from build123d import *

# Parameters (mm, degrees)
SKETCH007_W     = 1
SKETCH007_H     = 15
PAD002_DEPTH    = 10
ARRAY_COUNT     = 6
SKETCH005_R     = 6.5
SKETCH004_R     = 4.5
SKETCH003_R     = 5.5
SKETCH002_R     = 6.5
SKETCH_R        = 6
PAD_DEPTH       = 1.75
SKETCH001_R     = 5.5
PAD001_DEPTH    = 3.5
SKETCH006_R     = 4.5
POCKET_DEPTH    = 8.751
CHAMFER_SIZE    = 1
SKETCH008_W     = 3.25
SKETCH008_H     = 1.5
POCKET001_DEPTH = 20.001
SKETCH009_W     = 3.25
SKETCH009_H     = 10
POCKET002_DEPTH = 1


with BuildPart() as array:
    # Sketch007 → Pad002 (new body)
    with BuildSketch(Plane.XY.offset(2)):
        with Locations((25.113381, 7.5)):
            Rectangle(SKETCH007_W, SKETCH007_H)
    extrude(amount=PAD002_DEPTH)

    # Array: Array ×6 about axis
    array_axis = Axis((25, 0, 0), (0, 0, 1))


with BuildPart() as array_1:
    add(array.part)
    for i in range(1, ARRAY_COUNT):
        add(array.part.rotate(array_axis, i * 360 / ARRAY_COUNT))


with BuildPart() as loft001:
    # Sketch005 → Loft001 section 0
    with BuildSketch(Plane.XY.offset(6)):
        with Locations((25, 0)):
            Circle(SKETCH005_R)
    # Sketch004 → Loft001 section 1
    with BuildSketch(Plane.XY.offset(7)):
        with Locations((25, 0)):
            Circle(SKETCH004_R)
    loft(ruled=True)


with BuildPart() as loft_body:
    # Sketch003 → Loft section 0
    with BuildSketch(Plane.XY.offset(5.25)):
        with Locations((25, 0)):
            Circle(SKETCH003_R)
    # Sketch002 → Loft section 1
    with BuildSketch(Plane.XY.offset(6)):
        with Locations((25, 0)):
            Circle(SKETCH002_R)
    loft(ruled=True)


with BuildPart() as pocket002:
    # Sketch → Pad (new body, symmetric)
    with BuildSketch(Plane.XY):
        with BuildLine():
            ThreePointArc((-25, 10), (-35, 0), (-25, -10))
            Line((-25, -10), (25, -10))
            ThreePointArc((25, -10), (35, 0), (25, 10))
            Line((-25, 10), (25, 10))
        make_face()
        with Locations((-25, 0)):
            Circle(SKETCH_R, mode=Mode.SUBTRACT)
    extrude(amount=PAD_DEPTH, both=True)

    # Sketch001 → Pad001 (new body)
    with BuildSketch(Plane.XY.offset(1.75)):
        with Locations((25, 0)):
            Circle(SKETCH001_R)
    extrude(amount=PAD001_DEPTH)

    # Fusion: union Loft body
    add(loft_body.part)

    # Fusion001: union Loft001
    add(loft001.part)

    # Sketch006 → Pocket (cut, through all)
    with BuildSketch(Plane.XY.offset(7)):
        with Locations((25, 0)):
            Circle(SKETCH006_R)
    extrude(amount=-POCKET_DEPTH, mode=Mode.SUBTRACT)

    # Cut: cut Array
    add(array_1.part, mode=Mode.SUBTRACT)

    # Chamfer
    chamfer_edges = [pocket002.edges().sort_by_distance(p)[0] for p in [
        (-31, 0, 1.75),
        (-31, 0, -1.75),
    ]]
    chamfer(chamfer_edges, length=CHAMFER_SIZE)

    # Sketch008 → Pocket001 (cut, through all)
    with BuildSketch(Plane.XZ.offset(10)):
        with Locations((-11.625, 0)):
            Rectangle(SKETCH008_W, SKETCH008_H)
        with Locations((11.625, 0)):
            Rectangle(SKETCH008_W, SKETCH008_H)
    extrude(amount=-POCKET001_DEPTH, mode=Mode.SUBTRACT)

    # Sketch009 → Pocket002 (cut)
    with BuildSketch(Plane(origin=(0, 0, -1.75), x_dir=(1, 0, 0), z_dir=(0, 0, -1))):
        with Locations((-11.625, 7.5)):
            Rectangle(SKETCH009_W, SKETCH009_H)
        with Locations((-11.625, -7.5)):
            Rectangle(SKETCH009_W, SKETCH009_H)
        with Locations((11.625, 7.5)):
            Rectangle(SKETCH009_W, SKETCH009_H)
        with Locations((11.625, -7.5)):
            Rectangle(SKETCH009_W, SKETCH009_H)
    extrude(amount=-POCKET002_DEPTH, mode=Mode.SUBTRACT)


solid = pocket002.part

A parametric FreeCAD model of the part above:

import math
import FreeCAD as App
import Part
import Sketcher
from FreeCAD import Vector
Q = App.Units.Quantity


def edges_at(feature, points):
    """Names of the edges that pass closest to the given points."""
    edges = feature.Shape.Edges
    near = lambda p: min(range(len(edges)), key=lambda i: edges[i].distToShape(Part.Vertex(*p))[0])
    return sorted({f"Edge{near(p) + 1}" for p in points})


def add_polygon(sketch, points):
    """Adds a closed chain of lines whose ends are joined by coincident constraints."""
    first, n = sketch.GeometryCount, len(points)
    for a, b in zip(points, points[1:] + points[:1]):
        sketch.addGeometry(Part.LineSegment(App.Vector(*a, 0), App.Vector(*b, 0)), False)
    for i in range(n):
        sketch.addConstraint(Sketcher.Constraint("Coincident", first + i, 2, first + (i + 1) % n, 1))

doc = App.newDocument("Part")
params = doc.addObject("Spreadsheet::Sheet", "Params")
for row, (alias, value) in enumerate([
    ("sketch1_width", "1 mm"),
    ("sketch1_height", "15 mm"),
    ("pad1_length", "10 mm"),
    ("sketch2_diameter", "13 mm"),
    ("sketch3_diameter", "9 mm"),
    ("sketch4_diameter", "11 mm"),
    ("sketch5_diameter", "13 mm"),
    ("sketch6_diameter", "12 mm"),
    ("sketch6_radius", "10 mm"),
    ("sketch6_width", "50 mm"),
    ("pad2_length", "3.5 mm"),
    ("sketch7_diameter", "11 mm"),
    ("pad3_length", "3.5 mm"),
    ("sketch8_diameter", "9 mm"),
    ("chamfer_size", "1 mm"),
    ("sketch9_height", "1.5 mm"),
    ("sketch9_width", "3.25 mm"),
    ("sketch10_height", "10 mm"),
    ("sketch10_width", "3.25 mm"),
    ("pocket3_length", "1 mm"),
], start=1):
    params.set(f"A{row}", alias)
    params.set(f"B{row}", "=" + value)
    params.setAlias(f"B{row}", alias)

body = doc.addObject("PartDesign::Body", "Body")

sketch1 = body.newObject("Sketcher::SketchObject", "Sketch")
sketch1.AttachmentSupport = (doc.getObject("XY_Plane"), [""])
sketch1.MapMode = "FlatFace"
sketch1.AttachmentOffset = App.Placement(Vector(0, 0, 2), App.Rotation())
add_polygon(sketch1, [(24.613381, 15), (24.613381, 0), (25.613381, 0), (25.613381, 15)])
sketch1.addConstraint(Sketcher.Constraint("Vertical", 0))
sketch1.addConstraint(Sketcher.Constraint("Horizontal", 1))
sketch1.addConstraint(Sketcher.Constraint("Vertical", 2))
sketch1.addConstraint(Sketcher.Constraint("Horizontal", 3))
sketch1.addConstraint(Sketcher.Constraint("PointOnObject", 0, 2, -1))
sketch1.addConstraint(Sketcher.Constraint("DistanceX", 1, 1, 1, 2, Q("1 mm")))
sketch1.addConstraint(Sketcher.Constraint("DistanceY", 0, 2, 0, 1, Q("15 mm")))
sketch1.addConstraint(Sketcher.Constraint("DistanceX", -1, 1, 0, 2, Q("24.613381 mm")))
sketch1.setExpression("Constraints[9]", "Params.sketch1_width")
sketch1.setExpression("Constraints[10]", "Params.sketch1_height")
pad1 = body.newObject("PartDesign::Pad", "Pad")
pad1.Profile = sketch1
pad1.setExpression("Length", "Params.pad1_length")
body2 = doc.addObject("PartDesign::Body", "Body001")
doc.recompute()

body2.BaseFeature = body
doc.recompute()

body3 = doc.addObject("PartDesign::Body", "Body002")
body3.BaseFeature = body
body3.Placement = App.Placement(Vector(12.5, -21.650635, 0), App.Rotation(Vector(0, 0, 1), 60))
boolean = body2.newObject("PartDesign::Boolean", "Boolean")
boolean.Type = "Fuse"
boolean.addObjects([body3])
doc.recompute()

body4 = doc.addObject("PartDesign::Body", "Body003")
body4.BaseFeature = body
body4.Placement = App.Placement(Vector(37.5, -21.650635, 0), App.Rotation(Vector(0, 0, 1), 120))
boolean2 = body2.newObject("PartDesign::Boolean", "Boolean001")
boolean2.Type = "Fuse"
boolean2.addObjects([body4])
doc.recompute()

body5 = doc.addObject("PartDesign::Body", "Body004")
body5.BaseFeature = body
body5.Placement = App.Placement(Vector(50, 0, 0), App.Rotation(Vector(0, 0, 1), 180))
boolean3 = body2.newObject("PartDesign::Boolean", "Boolean002")
boolean3.Type = "Fuse"
boolean3.addObjects([body5])
doc.recompute()

body6 = doc.addObject("PartDesign::Body", "Body005")
body6.BaseFeature = body
body6.Placement = App.Placement(Vector(37.5, 21.650635, 0), App.Rotation(Vector(0, 0, 1), 240))
boolean4 = body2.newObject("PartDesign::Boolean", "Boolean003")
boolean4.Type = "Fuse"
boolean4.addObjects([body6])
doc.recompute()

body.Placement = App.Placement(Vector(12.5, 21.650635, 0), App.Rotation(Vector(0, 0, 1), 300))
boolean5 = body2.newObject("PartDesign::Boolean", "Boolean004")
boolean5.Type = "Fuse"
boolean5.addObjects([body])
body7 = doc.addObject("PartDesign::Body", "Body006")

sketch2 = body7.newObject("Sketcher::SketchObject", "Sketch001")
sketch2.AttachmentSupport = (doc.getObject("XY_Plane006"), [""])
sketch2.MapMode = "FlatFace"
sketch2.AttachmentOffset = App.Placement(Vector(0, 0, 6), App.Rotation())
sketch2.addGeometry(Part.Circle(Vector(25, 0, 0), Vector(0, 0, 1), 6.5), False)
sketch2.addConstraint(Sketcher.Constraint("PointOnObject", 0, 3, -1))
sketch2.addConstraint(Sketcher.Constraint("Diameter", 0, Q("13 mm")))
sketch2.addConstraint(Sketcher.Constraint("DistanceX", -1, 1, 0, 3, Q("25 mm")))
sketch2.setExpression("Constraints[1]", "Params.sketch2_diameter")

sketch3 = body7.newObject("Sketcher::SketchObject", "Sketch002")
sketch3.AttachmentSupport = (doc.getObject("XY_Plane006"), [""])
sketch3.MapMode = "FlatFace"
sketch3.AttachmentOffset = App.Placement(Vector(0, 0, 7), App.Rotation())
sketch3.addGeometry(Part.Circle(Vector(25, 0, 0), Vector(0, 0, 1), 4.5), False)
sketch3.addConstraint(Sketcher.Constraint("PointOnObject", 0, 3, -1))
sketch3.addConstraint(Sketcher.Constraint("Diameter", 0, Q("9 mm")))
sketch3.addConstraint(Sketcher.Constraint("DistanceX", -1, 1, 0, 3, Q("25 mm")))
sketch3.setExpression("Constraints[1]", "Params.sketch3_diameter")

additiveloft = body7.newObject("PartDesign::AdditiveLoft", "AdditiveLoft")
additiveloft.Profile = sketch2
additiveloft.Sections = [sketch3]
additiveloft.Ruled = True
body8 = doc.addObject("PartDesign::Body", "Body007")

sketch4 = body8.newObject("Sketcher::SketchObject", "Sketch003")
sketch4.AttachmentSupport = (doc.getObject("XY_Plane007"), [""])
sketch4.MapMode = "FlatFace"
sketch4.AttachmentOffset = App.Placement(Vector(0, 0, 5.25), App.Rotation())
sketch4.addGeometry(Part.Circle(Vector(25, 0, 0), Vector(0, 0, 1), 5.5), False)
sketch4.addConstraint(Sketcher.Constraint("PointOnObject", 0, 3, -1))
sketch4.addConstraint(Sketcher.Constraint("Diameter", 0, Q("11 mm")))
sketch4.addConstraint(Sketcher.Constraint("DistanceX", -1, 1, 0, 3, Q("25 mm")))
sketch4.setExpression("Constraints[1]", "Params.sketch4_diameter")

sketch5 = body8.newObject("Sketcher::SketchObject", "Sketch004")
sketch5.AttachmentSupport = (doc.getObject("XY_Plane007"), [""])
sketch5.MapMode = "FlatFace"
sketch5.AttachmentOffset = App.Placement(Vector(0, 0, 6), App.Rotation())
sketch5.addGeometry(Part.Circle(Vector(25, 0, 0), Vector(0, 0, 1), 6.5), False)
sketch5.addConstraint(Sketcher.Constraint("PointOnObject", 0, 3, -1))
sketch5.addConstraint(Sketcher.Constraint("Diameter", 0, Q("13 mm")))
sketch5.addConstraint(Sketcher.Constraint("DistanceX", -1, 1, 0, 3, Q("25 mm")))
sketch5.setExpression("Constraints[1]", "Params.sketch5_diameter")

additiveloft2 = body8.newObject("PartDesign::AdditiveLoft", "AdditiveLoft001")
additiveloft2.Profile = sketch4
additiveloft2.Sections = [sketch5]
additiveloft2.Ruled = True
body9 = doc.addObject("PartDesign::Body", "Body008")

sketch6 = body9.newObject("Sketcher::SketchObject", "Sketch005")
sketch6.AttachmentSupport = (doc.getObject("XY_Plane008"), [""])
sketch6.MapMode = "FlatFace"
sketch6.addGeometry(Part.ArcOfCircle(Part.Circle(Vector(-25, 0, 0), Vector(0, 0, 1), 10), math.radians(90), math.radians(270)), False)
sketch6.addGeometry(Part.LineSegment(Vector(-25, -10, 0), Vector(25, -10, 0)), False)
sketch6.addGeometry(Part.ArcOfCircle(Part.Circle(Vector(25, 0, 0), Vector(0, 0, 1), 10), math.radians(-90), math.radians(90)), False)
sketch6.addGeometry(Part.LineSegment(Vector(25, 10, 0), Vector(-25, 10, 0)), False)
sketch6.addGeometry(Part.Circle(Vector(-25, 0, 0), Vector(0, 0, 1), 6), False)
sketch6.addConstraint(Sketcher.Constraint("Tangent", 0, 2, 1, 1))
sketch6.addConstraint(Sketcher.Constraint("Tangent", 1, 2, 2, 1))
sketch6.addConstraint(Sketcher.Constraint("Tangent", 2, 2, 3, 1))
sketch6.addConstraint(Sketcher.Constraint("Tangent", 3, 2, 0, 1))
sketch6.addConstraint(Sketcher.Constraint("Horizontal", 1))
sketch6.addConstraint(Sketcher.Constraint("Horizontal", 3))
sketch6.addConstraint(Sketcher.Constraint("Coincident", 4, 3, 0, 3))
sketch6.addConstraint(Sketcher.Constraint("Symmetric", 0, 3, 2, 3, -1, 1))
sketch6.addConstraint(Sketcher.Constraint("Diameter", 4, Q("12 mm")))
sketch6.addConstraint(Sketcher.Constraint("Radius", 0, Q("10 mm")))
sketch6.addConstraint(Sketcher.Constraint("DistanceX", 1, 1, 1, 2, Q("50 mm")))
sketch6.setExpression("Constraints[8]", "Params.sketch6_diameter")
sketch6.setExpression("Constraints[9]", "Params.sketch6_radius")
sketch6.setExpression("Constraints[10]", "Params.sketch6_width")
pad2 = body9.newObject("PartDesign::Pad", "Pad001")
pad2.Profile = sketch6
pad2.setExpression("Length", "Params.pad2_length")
pad2.Midplane = True

sketch7 = body9.newObject("Sketcher::SketchObject", "Sketch006")
sketch7.AttachmentSupport = (doc.getObject("XY_Plane008"), [""])
sketch7.MapMode = "FlatFace"
sketch7.AttachmentOffset = App.Placement(Vector(0, 0, 1.75), App.Rotation())
sketch7.addGeometry(Part.Circle(Vector(25, 0, 0), Vector(0, 0, 1), 5.5), False)
sketch7.addConstraint(Sketcher.Constraint("PointOnObject", 0, 3, -1))
sketch7.addConstraint(Sketcher.Constraint("Diameter", 0, Q("11 mm")))
sketch7.addConstraint(Sketcher.Constraint("DistanceX", -1, 1, 0, 3, Q("25 mm")))
sketch7.setExpression("Constraints[1]", "Params.sketch7_diameter")
pad3 = body9.newObject("PartDesign::Pad", "Pad002")
pad3.Profile = sketch7
pad3.setExpression("Length", "Params.pad3_length")
doc.recompute()

boolean6 = body9.newObject("PartDesign::Boolean", "Boolean005")
boolean6.Type = "Fuse"
boolean6.addObjects([body8])
doc.recompute()

boolean7 = body9.newObject("PartDesign::Boolean", "Boolean006")
boolean7.Type = "Fuse"
boolean7.addObjects([body7])

sketch8 = body9.newObject("Sketcher::SketchObject", "Sketch007")
sketch8.AttachmentSupport = (doc.getObject("XY_Plane008"), [""])
sketch8.MapMode = "FlatFace"
sketch8.AttachmentOffset = App.Placement(Vector(0, 0, 7), App.Rotation())
sketch8.addGeometry(Part.Circle(Vector(25, 0, 0), Vector(0, 0, 1), 4.5), False)
sketch8.addConstraint(Sketcher.Constraint("PointOnObject", 0, 3, -1))
sketch8.addConstraint(Sketcher.Constraint("Diameter", 0, Q("9 mm")))
sketch8.addConstraint(Sketcher.Constraint("DistanceX", -1, 1, 0, 3, Q("25 mm")))
sketch8.setExpression("Constraints[1]", "Params.sketch8_diameter")
pocket1 = body9.newObject("PartDesign::Pocket", "Pocket")
pocket1.Profile = sketch8
pocket1.Type = "ThroughAll"
doc.recompute()

boolean8 = body9.newObject("PartDesign::Boolean", "Boolean007")
boolean8.Type = "Cut"
boolean8.addObjects([body2])
doc.recompute()

chamfer = body9.newObject("PartDesign::Chamfer", "Chamfer")
chamfer.Base = (boolean8, edges_at(boolean8, [(-31, 0, 1.75), (-31, 0, -1.75)]))
chamfer.setExpression("Size", "Params.chamfer_size")

sketch9 = body9.newObject("Sketcher::SketchObject", "Sketch008")
sketch9.AttachmentSupport = (doc.getObject("XZ_Plane008"), [""])
sketch9.MapMode = "FlatFace"
sketch9.AttachmentOffset = App.Placement(Vector(0, 0, 10), App.Rotation())
add_polygon(sketch9, [(-13.25, 0.75), (-13.25, -0.75), (-10, -0.75), (-10, 0.75)])
add_polygon(sketch9, [(10, 0.75), (10, -0.75), (13.25, -0.75), (13.25, 0.75)])
sketch9.addConstraint(Sketcher.Constraint("Vertical", 0))
sketch9.addConstraint(Sketcher.Constraint("Horizontal", 1))
sketch9.addConstraint(Sketcher.Constraint("Vertical", 2))
sketch9.addConstraint(Sketcher.Constraint("Horizontal", 3))
sketch9.addConstraint(Sketcher.Constraint("Vertical", 4))
sketch9.addConstraint(Sketcher.Constraint("Horizontal", 5))
sketch9.addConstraint(Sketcher.Constraint("Vertical", 6))
sketch9.addConstraint(Sketcher.Constraint("Horizontal", 7))
sketch9.addConstraint(Sketcher.Constraint("Symmetric", 2, 2, 4, 2, -1, 1))
sketch9.addConstraint(Sketcher.Constraint("Symmetric", 0, 2, 6, 2, -1, 1))
sketch9.addConstraint(Sketcher.Constraint("Horizontal", 1, 2, 4, 2))
sketch9.addConstraint(Sketcher.Constraint("DistanceY", 0, 2, 0, 1, Q("1.5 mm")))
sketch9.addConstraint(Sketcher.Constraint("DistanceX", 1, 2, -1, 1, Q("10 mm")))
sketch9.addConstraint(Sketcher.Constraint("DistanceX", 1, 1, 1, 2, Q("3.25 mm")))
sketch9.setExpression("Constraints[19]", "Params.sketch9_height")
sketch9.setExpression("Constraints[21]", "Params.sketch9_width")
pocket2 = body9.newObject("PartDesign::Pocket", "Pocket001")
pocket2.Profile = sketch9
pocket2.Type = "ThroughAll"

sketch10 = body9.newObject("Sketcher::SketchObject", "Sketch009")
sketch10.AttachmentSupport = (doc.getObject("XY_Plane008"), [""])
sketch10.MapMode = "FlatFace"
sketch10.AttachmentOffset = App.Placement(Vector(0, 0, -1.75), App.Rotation())
add_polygon(sketch10, [(-13.25, -12.5), (-13.25, -2.5), (-10, -2.5), (-10, -12.5)])
add_polygon(sketch10, [(-13.25, 2.5), (-13.25, 12.5), (-10, 12.5), (-10, 2.5)])
add_polygon(sketch10, [(10, -12.5), (10, -2.5), (13.25, -2.5), (13.25, -12.5)])
add_polygon(sketch10, [(10, 2.5), (10, 12.5), (13.25, 12.5), (13.25, 2.5)])
sketch10.addConstraint(Sketcher.Constraint("Vertical", 0))
sketch10.addConstraint(Sketcher.Constraint("Horizontal", 1))
sketch10.addConstraint(Sketcher.Constraint("Vertical", 2))
sketch10.addConstraint(Sketcher.Constraint("Horizontal", 3))
sketch10.addConstraint(Sketcher.Constraint("Vertical", 4))
sketch10.addConstraint(Sketcher.Constraint("Horizontal", 5))
sketch10.addConstraint(Sketcher.Constraint("Vertical", 6))
sketch10.addConstraint(Sketcher.Constraint("Horizontal", 7))
sketch10.addConstraint(Sketcher.Constraint("Vertical", 8))
sketch10.addConstraint(Sketcher.Constraint("Horizontal", 9))
sketch10.addConstraint(Sketcher.Constraint("Vertical", 10))
sketch10.addConstraint(Sketcher.Constraint("Horizontal", 11))
sketch10.addConstraint(Sketcher.Constraint("Vertical", 12))
sketch10.addConstraint(Sketcher.Constraint("Horizontal", 13))
sketch10.addConstraint(Sketcher.Constraint("Vertical", 14))
sketch10.addConstraint(Sketcher.Constraint("Horizontal", 15))
sketch10.addConstraint(Sketcher.Constraint("Symmetric", 6, 2, 8, 2, -1, 1))
sketch10.addConstraint(Sketcher.Constraint("Symmetric", 4, 2, 10, 2, -1, 1))
sketch10.addConstraint(Sketcher.Constraint("Symmetric", 2, 2, 12, 2, -1, 1))
sketch10.addConstraint(Sketcher.Constraint("Symmetric", 0, 2, 14, 2, -1, 1))
sketch10.addConstraint(Sketcher.Constraint("Symmetric", 1, 2, 8, 2, -2))
sketch10.addConstraint(Sketcher.Constraint("Symmetric", 3, 2, 10, 2, -2))
sketch10.addConstraint(Sketcher.Constraint("DistanceY", 0, 1, 0, 2, Q("10 mm")))
sketch10.addConstraint(Sketcher.Constraint("DistanceX", 1, 2, -1, 1, Q("10 mm")))
sketch10.addConstraint(Sketcher.Constraint("DistanceY", 0, 2, 4, 2, Q("15 mm")))
sketch10.addConstraint(Sketcher.Constraint("DistanceX", 1, 1, 1, 2, Q("3.25 mm")))
sketch10.setExpression("Constraints[38]", "Params.sketch10_height")
sketch10.setExpression("Constraints[41]", "Params.sketch10_width")
pocket3 = body9.newObject("PartDesign::Pocket", "Pocket002")
pocket3.Profile = sketch10
pocket3.setExpression("Length", "Params.pocket3_length")
pocket3.Reversed = True

doc.recompute()
